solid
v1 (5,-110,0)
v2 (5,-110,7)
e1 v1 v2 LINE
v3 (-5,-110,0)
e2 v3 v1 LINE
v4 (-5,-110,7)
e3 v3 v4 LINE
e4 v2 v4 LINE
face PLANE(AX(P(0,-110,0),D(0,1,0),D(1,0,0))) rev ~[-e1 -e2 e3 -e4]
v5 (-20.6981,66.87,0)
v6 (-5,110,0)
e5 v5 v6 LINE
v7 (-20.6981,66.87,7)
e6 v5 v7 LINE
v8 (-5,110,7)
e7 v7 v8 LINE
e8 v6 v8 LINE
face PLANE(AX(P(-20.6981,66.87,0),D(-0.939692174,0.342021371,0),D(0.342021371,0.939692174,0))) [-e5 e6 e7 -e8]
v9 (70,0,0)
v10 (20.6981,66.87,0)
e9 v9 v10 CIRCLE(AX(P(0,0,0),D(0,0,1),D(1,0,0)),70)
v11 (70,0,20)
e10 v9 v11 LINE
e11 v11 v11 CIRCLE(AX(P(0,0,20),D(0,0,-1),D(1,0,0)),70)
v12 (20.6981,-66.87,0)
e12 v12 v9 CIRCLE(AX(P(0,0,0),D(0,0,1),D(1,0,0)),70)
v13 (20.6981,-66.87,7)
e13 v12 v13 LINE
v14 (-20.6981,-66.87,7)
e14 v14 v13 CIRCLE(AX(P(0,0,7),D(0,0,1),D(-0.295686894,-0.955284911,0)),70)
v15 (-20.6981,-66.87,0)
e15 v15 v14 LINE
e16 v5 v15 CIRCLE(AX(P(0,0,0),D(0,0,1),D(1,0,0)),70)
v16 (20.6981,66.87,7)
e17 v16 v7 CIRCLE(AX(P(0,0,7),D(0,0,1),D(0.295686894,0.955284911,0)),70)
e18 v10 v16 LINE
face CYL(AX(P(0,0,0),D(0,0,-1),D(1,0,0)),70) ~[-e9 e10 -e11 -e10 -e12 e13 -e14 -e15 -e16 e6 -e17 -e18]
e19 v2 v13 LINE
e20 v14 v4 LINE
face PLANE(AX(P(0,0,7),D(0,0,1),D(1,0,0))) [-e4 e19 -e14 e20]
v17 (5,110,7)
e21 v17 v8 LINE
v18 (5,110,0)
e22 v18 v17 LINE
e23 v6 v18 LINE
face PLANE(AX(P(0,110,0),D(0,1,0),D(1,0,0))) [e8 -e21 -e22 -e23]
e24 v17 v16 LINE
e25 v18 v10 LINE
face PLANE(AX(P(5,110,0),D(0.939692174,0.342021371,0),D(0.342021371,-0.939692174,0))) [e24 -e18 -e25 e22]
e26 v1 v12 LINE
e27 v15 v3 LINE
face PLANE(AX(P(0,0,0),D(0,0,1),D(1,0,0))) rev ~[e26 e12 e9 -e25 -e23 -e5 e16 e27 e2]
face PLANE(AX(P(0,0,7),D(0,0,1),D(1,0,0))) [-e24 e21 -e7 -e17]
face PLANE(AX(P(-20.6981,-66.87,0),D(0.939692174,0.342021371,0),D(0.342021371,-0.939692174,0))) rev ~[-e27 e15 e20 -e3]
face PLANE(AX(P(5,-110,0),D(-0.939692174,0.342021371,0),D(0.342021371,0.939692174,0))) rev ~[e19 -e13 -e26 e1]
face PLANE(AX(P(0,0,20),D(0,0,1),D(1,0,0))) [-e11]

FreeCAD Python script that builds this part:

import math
import FreeCAD as App
import Part
import Sketcher

V = App.Vector
Q = App.Units.Quantity

doc = App.newDocument("Part")
body = doc.addObject("PartDesign::Body", "Body")

sketch1 = doc.addObject("Sketcher::SketchObject", "Sketch")
body.addObject(sketch1)
sketch1.AttachmentSupport = (doc.XY_Plane, [""])
sketch1.MapMode = "FlatFace"
sketch1.addGeometry(Part.Circle(V(0, 0, 0), V(0, 0, 1), 70), False)
sketch1.addConstraint([
    Sketcher.Constraint("Coincident", 0, 3, -1, 1),
    Sketcher.Constraint("Diameter", 0, Q("5.5118 in")),
])
pad1 = doc.addObject("PartDesign::Pad", "Pad")
body.addObject(pad1)
pad1.Profile = sketch1
pad1.Length = Q("0.7874016 in")

sketch2 = doc.addObject("Sketcher::SketchObject", "Sketch001")
body.addObject(sketch2)
sketch2.AttachmentSupport = (doc.XY_Plane, [""])
sketch2.MapMode = "FlatFace"
sketch2.addGeometry([
    Part.LineSegment(V(21, 67, 0), V(5, 110, 0)),
    Part.LineSegment(V(5, 110, 0), V(-5, 110, 0)),
    Part.LineSegment(V(-5, 110, 0), V(-21, 67, 0)),
    Part.ArcOfCircle(Part.Circle(V(0, 0, 0), V(0, 0, 1), 70), math.radians(73), math.radians(107)),
    Part.LineSegment(V(5, -110, 0), V(21, -67, 0)),
    Part.ArcOfCircle(Part.Circle(V(0, 0, 0), V(0, 0, 1), 70), math.radians(-107), math.radians(-73)),
    Part.LineSegment(V(-21, -67, 0), V(-5, -110, 0)),
    Part.LineSegment(V(-5, -110, 0), V(5, -110, 0)),
], False)
sketch2.addConstraint([
    Sketcher.Constraint("Coincident", 0, 2, 1, 1),
    Sketcher.Constraint("Coincident", 1, 2, 2, 1),
    Sketcher.Constraint("Coincident", 2, 2, 3, 2),
    Sketcher.Constraint("Coincident", 3, 1, 0, 1),
    Sketcher.Constraint("Coincident", 4, 2, 5, 2),
    Sketcher.Constraint("Coincident", 5, 1, 6, 1),
    Sketcher.Constraint("Coincident", 6, 2, 7, 1),
    Sketcher.Constraint("Coincident", 7, 2, 4, 1),
    Sketcher.Constraint("Horizontal", 1),
    Sketcher.Constraint("Horizontal", 7),
    Sketcher.Constraint("Coincident", 3, 3, -1, 1),
    Sketcher.Constraint("Coincident", 5, 3, -1, 1),
    Sketcher.Constraint("Equal", 3, 5),
    Sketcher.Constraint("Symmetric", 0, 2, 6, 2, -1, 1),
    Sketcher.Constraint("Parallel", 2, 4),
    Sketcher.Constraint("Parallel", 0, 6),
    Sketcher.Constraint("Horizontal", 2, 2, 3, 1),
    Sketcher.Constraint("Horizontal", 4, 2, 5, 1),
    Sketcher.Constraint("Vertical", 1, 2, 6, 2),
    Sketcher.Constraint("Angle", 0, Q("110 deg")),
    Sketcher.Constraint("Radius", 3, Q("2.7559 in")),
    Sketcher.Constraint("DistanceX", 1, 2, 1, 1, Q("0.3937 in")),
    Sketcher.Constraint("DistanceY", -1, 1, 0, 2, Q("4.3307 in")),
])
pad2 = doc.addObject("PartDesign::Pad", "Pad001")
body.addObject(pad2)
pad2.Profile = sketch2
pad2.Length = Q("0.2755906 in")

doc.recompute()
